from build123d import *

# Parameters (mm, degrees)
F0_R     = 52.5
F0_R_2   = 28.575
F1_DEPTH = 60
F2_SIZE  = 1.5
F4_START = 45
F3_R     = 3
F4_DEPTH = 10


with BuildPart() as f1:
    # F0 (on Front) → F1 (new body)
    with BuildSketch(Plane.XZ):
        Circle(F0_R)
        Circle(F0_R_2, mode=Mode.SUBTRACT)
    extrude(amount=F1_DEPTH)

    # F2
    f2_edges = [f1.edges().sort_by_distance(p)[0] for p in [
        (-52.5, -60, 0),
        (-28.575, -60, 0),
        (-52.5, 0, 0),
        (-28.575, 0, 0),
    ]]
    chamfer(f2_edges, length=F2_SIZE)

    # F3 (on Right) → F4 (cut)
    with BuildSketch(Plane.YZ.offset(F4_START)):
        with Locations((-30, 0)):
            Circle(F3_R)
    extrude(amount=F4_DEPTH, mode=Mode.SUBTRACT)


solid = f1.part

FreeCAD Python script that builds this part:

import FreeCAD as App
import Part
import Sketcher

V = App.Vector
Q = App.Units.Quantity


def edges_at(feature, points):
    """Names of the edges that pass closest to the given points."""
    edges = feature.Shape.Edges
    near = lambda p: min(range(len(edges)), key=lambda i: edges[i].distToShape(Part.Vertex(*p))[0])
    return sorted({f"Edge{near(p) + 1}" for p in points})

doc = App.newDocument("Part")
body = doc.addObject("PartDesign::Body", "Body")

# Sketch on XZ plane
sketch1 = body.newObject("Sketcher::SketchObject", "Sketch")
sketch1.AttachmentSupport = (doc.getObject("XZ_Plane"), [""])
sketch1.MapMode = "FlatFace"
sketch1.addGeometry([
    Part.Circle(V(0, 0, 0), V(0, 0, 1), 52),
    Part.Circle(V(0, 0, 0), V(0, 0, 1), 29),
], False)
sketch1.addConstraint([
    Sketcher.Constraint("Coincident", 0, 3, -1, 1),
    Sketcher.Constraint("Coincident", 1, 3, -1, 1),
    Sketcher.Constraint("Diameter", 0, Q("105 mm")),
    Sketcher.Constraint("Diameter", 1, Q("57.15 mm")),
])
pad1 = body.newObject("PartDesign::Pad", "Pad")
pad1.Profile = sketch1
pad1.Length = 60
doc.recompute()

chamfer = body.newObject("PartDesign::Chamfer", "Chamfer")
chamfer.Base = (pad1, edges_at(pad1, [
    (-52.5, -60, 0),
    (-28.575, -60, 0),
    (-52.5, 0, 0),
    (-28.575, 0, 0),
]))
chamfer.Size = 1.5

# Sketch on YZ plane
sketch2 = body.newObject("Sketcher::SketchObject", "Sketch001")
sketch2.AttachmentSupport = (doc.getObject("YZ_Plane"), [""])
sketch2.MapMode = "FlatFace"
sketch2.AttachmentOffset = App.Placement(V(0, 0, 45), App.Rotation())
sketch2.addGeometry(Part.Circle(V(-30, 0, 0), V(0, 0, 1), 3), False)
sketch2.addConstraint([
    Sketcher.Constraint("PointOnObject", 0, 3, -1),
    Sketcher.Constraint("Diameter", 0, Q("6 mm")),
    Sketcher.Constraint("DistanceX", 0, 3, -1, 1, Q("30 mm")),
])
pocket1 = body.newObject("PartDesign::Pocket", "Pocket")
pocket1.Profile = sketch2
pocket1.Length = 10
pocket1.Reversed = True

doc.recompute()
